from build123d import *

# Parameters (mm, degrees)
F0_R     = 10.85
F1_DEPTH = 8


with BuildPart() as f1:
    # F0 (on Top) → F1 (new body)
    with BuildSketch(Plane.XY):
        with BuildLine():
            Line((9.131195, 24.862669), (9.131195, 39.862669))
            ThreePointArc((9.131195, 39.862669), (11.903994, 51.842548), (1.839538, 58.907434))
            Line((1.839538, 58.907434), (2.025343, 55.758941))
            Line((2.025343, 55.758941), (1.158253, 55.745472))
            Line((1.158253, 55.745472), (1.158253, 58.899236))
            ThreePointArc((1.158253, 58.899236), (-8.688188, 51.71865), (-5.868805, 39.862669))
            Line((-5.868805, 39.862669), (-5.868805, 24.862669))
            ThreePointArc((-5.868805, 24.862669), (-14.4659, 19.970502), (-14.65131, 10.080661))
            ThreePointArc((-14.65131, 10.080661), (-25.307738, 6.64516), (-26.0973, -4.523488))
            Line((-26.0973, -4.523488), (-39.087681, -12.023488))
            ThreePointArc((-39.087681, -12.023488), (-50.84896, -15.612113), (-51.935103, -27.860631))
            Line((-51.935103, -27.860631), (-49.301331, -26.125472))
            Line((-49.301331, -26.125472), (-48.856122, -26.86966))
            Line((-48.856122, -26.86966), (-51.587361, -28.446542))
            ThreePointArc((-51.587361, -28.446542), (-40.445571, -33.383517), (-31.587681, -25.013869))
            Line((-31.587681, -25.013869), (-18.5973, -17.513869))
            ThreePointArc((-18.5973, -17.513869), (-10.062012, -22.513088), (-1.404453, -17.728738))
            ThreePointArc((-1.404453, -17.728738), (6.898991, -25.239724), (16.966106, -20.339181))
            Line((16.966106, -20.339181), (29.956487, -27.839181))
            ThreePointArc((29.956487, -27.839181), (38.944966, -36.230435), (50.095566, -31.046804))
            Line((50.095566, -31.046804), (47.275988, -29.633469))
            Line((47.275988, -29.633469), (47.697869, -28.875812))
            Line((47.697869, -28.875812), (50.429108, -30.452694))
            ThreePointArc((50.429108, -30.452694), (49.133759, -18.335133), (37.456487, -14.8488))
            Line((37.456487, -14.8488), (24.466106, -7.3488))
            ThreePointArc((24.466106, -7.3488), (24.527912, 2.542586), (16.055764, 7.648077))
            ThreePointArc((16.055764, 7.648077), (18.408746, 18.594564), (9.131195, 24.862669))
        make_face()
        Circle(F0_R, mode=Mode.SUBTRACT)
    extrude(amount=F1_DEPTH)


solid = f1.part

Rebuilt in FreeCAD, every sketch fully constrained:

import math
import FreeCAD as App
import Part
import Sketcher

V = App.Vector
Q = App.Units.Quantity

doc = App.newDocument("Part")
body = doc.addObject("PartDesign::Body", "Body")

sketch1 = body.newObject("Sketcher::SketchObject", "Sketch")
sketch1.AttachmentSupport = (doc.getObject("XY_Plane"), [""])
sketch1.MapMode = "FlatFace"
sketch1.addGeometry([
    Part.LineSegment(V(9.131195, 24.862669, 0), V(9.131195, 39.862669, 0)),
    Part.ArcOfCircle(Part.Circle(V(1.631195, 47.909407, 0), V(0, 0, 1), 11), math.radians(-47.014112), math.radians(88.914736)),
    Part.LineSegment(V(1.839538, 58.907434, 0), V(2.025343, 55.758941, 0)),
    Part.LineSegment(V(2.025343, 55.758941, 0), V(1.158253, 55.745472, 0)),
    Part.LineSegment(V(1.158253, 55.745472, 0), V(1.158253, 58.899236, 0)),
    Part.ArcOfCircle(Part.Circle(V(1.631196, 47.909407, 0), V(0, 0, 1), 11), math.radians(92.464179), math.radians(227.014111)),
    Part.LineSegment(V(-5.868805, 39.862669, 0), V(-5.868805, 24.862669, 0)),
    Part.ArcOfCircle(Part.Circle(V(-5.868805, 14.862669, 0), V(0, 0, 1), 10), math.radians(89.999999), math.radians(208.567962)),
    Part.ArcOfCircle(Part.Circle(V(-17.437047, 0.476513, 0), V(0, 0, 1), 10), math.radians(73.824905), math.radians(210.000004)),
    Part.LineSegment(V(-26.0973, -4.523488, 0), V(-39.087681, -12.023488, 0)),
    Part.ArcOfCircle(Part.Circle(V(-42.306361, -22.542048, 0), V(0, 0, 1), 11), math.radians(72.985888), math.radians(208.914736)),
    Part.LineSegment(V(-51.935103, -27.860631, 0), V(-49.301331, -26.125472, 0)),
    Part.LineSegment(V(-49.301331, -26.125472, 0), V(-48.856122, -26.86966, 0)),
    Part.LineSegment(V(-48.856122, -26.86966, 0), V(-51.587361, -28.446542, 0)),
    Part.ArcOfCircle(Part.Circle(V(-42.306361, -22.542047, 0), V(0, 0, 1), 11.000001), math.radians(-147.535819), math.radians(-12.98589)),
    Part.LineSegment(V(-31.587681, -25.013869, 0), V(-18.5973, -17.513869, 0)),
    Part.ArcOfCircle(Part.Circle(V(-9.937046, -12.513869, 0), V(0, 0, 1), 10), math.radians(-149.999998), math.radians(-31.432044)),
    Part.ArcOfCircle(Part.Circle(V(8.305852, -15.339182, 0), V(0, 0, 1), 10), math.radians(-166.17509), math.radians(-29.999997)),
    Part.LineSegment(V(16.966106, -20.339181, 0), V(29.956487, -27.839181, 0)),
    Part.ArcOfCircle(Part.Circle(V(40.675167, -25.36736, 0), V(0, 0, 1), 11), math.radians(-167.014113), math.radians(-31.085267)),
    Part.LineSegment(V(50.095566, -31.046804, 0), V(47.275988, -29.633469, 0)),
    Part.LineSegment(V(47.275988, -29.633469, 0), V(47.697869, -28.875812, 0)),
    Part.LineSegment(V(47.697869, -28.875812, 0), V(50.429108, -30.452694, 0)),
    Part.ArcOfCircle(Part.Circle(V(40.675167, -25.36736, 0), V(0, 0, 1), 11), math.radians(-27.535824), math.radians(107.014113)),
    Part.LineSegment(V(37.456487, -14.8488, 0), V(24.466106, -7.3488, 0)),
    Part.ArcOfCircle(Part.Circle(V(15.805851, -2.348801, 0), V(0, 0, 1), 10.000001), math.radians(-29.999993), math.radians(88.567953)),
    Part.ArcOfCircle(Part.Circle(V(9.131195, 14.862669, 0), V(0, 0, 1), 10), math.radians(-46.175087), math.radians(89.999998)),
    Part.Circle(V(0, 0, 0), V(0, 0, 1), 10.85),
], False)
sketch1.addConstraint([
    Sketcher.Constraint("Coincident", 0, 2, 1, 1),
    Sketcher.Constraint("Coincident", 1, 2, 2, 1),
    Sketcher.Constraint("Coincident", 2, 2, 3, 1),
    Sketcher.Constraint("Coincident", 3, 2, 4, 1),
    Sketcher.Constraint("Coincident", 4, 2, 5, 1),
    Sketcher.Constraint("Coincident", 5, 2, 6, 1),
    Sketcher.Constraint("Coincident", 6, 2, 7, 1),
    Sketcher.Constraint("Coincident", 7, 2, 8, 1),
    Sketcher.Constraint("Coincident", 8, 2, 9, 1),
    Sketcher.Constraint("Coincident", 9, 2, 10, 1),
    Sketcher.Constraint("Coincident", 10, 2, 11, 1),
    Sketcher.Constraint("Coincident", 11, 2, 12, 1),
    Sketcher.Constraint("Coincident", 12, 2, 13, 1),
    Sketcher.Constraint("Coincident", 13, 2, 14, 1),
    Sketcher.Constraint("Coincident", 14, 2, 15, 1),
    Sketcher.Constraint("Coincident", 15, 2, 16, 1),
    Sketcher.Constraint("Coincident", 16, 2, 17, 1),
    Sketcher.Constraint("Coincident", 17, 2, 18, 1),
    Sketcher.Constraint("Coincident", 18, 2, 19, 1),
    Sketcher.Constraint("Coincident", 19, 2, 20, 1),
    Sketcher.Constraint("Coincident", 20, 2, 21, 1),
    Sketcher.Constraint("Coincident", 21, 2, 22, 1),
    Sketcher.Constraint("Coincident", 22, 2, 23, 1),
    Sketcher.Constraint("Coincident", 23, 2, 24, 1),
    Sketcher.Constraint("Coincident", 24, 2, 25, 1),
    Sketcher.Constraint("Coincident", 25, 2, 26, 1),
    Sketcher.Constraint("Coincident", 26, 2, 0, 1),
    Sketcher.Constraint("Vertical", 0),
    Sketcher.Constraint("Vertical", 4),
    Sketcher.Constraint("Vertical", 6),
    Sketcher.Constraint("Coincident", 27, 3, -1, 1),
    Sketcher.Constraint("Coincident", 5, 3, 1, 3),
    Sketcher.Constraint("Coincident", 14, 3, 10, 3),
    Sketcher.Constraint("Coincident", 23, 3, 19, 3),
    Sketcher.Constraint("Equal", 1, 5),
    Sketcher.Constraint("Equal", 7, 8),
    Sketcher.Constraint("Equal", 5, 10),
    Sketcher.Constraint("Equal", 10, 14),
    Sketcher.Constraint("Equal", 8, 16),
    Sketcher.Constraint("Equal", 16, 17),
    Sketcher.Constraint("Equal", 14, 19),
    Sketcher.Constraint("Equal", 19, 23),
    Sketcher.Constraint("Equal", 17, 25),
    Sketcher.Constraint("Equal", 25, 26),
    Sketcher.Constraint("Parallel", 9, 13),
    Sketcher.Constraint("Parallel", 13, 15),
    Sketcher.Constraint("Parallel", 18, 22),
    Sketcher.Constraint("Parallel", 22, 24),
    Sketcher.Constraint("Horizontal", 7, 3, 26, 3),
    Sketcher.Constraint("Horizontal", 0, 2, 5, 2),
    Sketcher.Constraint("Vertical", 26, 3, 0, 2),
    Sketcher.Constraint("Vertical", 7, 3, 5, 2),
    Sketcher.Constraint("Equal", 2, 11),
    Sketcher.Constraint("Equal", 3, 12),
    Sketcher.Constraint("Equal", 9, 15),
    Sketcher.Constraint("Equal", 15, 18),
    Sketcher.Constraint("Equal", 11, 20),
    Sketcher.Constraint("Equal", 12, 21),
    Sketcher.Constraint("Equal", 13, 22),
    Sketcher.Constraint("Equal", 18, 24),
    Sketcher.Constraint("Radius", 1, 11.0),
    Sketcher.Constraint("Radius", 7, 10.0),
    Sketcher.Constraint("Diameter", 27, 21.7),
    Sketcher.Constraint("DistanceY", 0, 1, 0, 2, 15.0),
    Sketcher.Constraint("Angle", 9, Q("-150 deg")),
    Sketcher.Constraint("Angle", 18, Q("-30 deg")),
    Sketcher.Constraint("Distance", 9, 15.0),
    Sketcher.Constraint("DistanceX", 7, 3, 26, 3, 15.0),
    Sketcher.Constraint("DistanceY", 8, 2, 8, 3, 5.000001),
    Sketcher.Constraint("DistanceY", 15, 2, 16, 3, 5.0),
    Sketcher.Constraint("DistanceY", 17, 2, 17, 3, 4.999999),
    Sketcher.Constraint("DistanceY", 24, 2, 25, 3, 4.999999),
    Sketcher.Constraint("DistanceX", 8, 3, 16, 3, 7.500001),
    Sketcher.Constraint("DistanceX", 17, 3, 25, 3, 7.499999),
    Sketcher.Constraint("DistanceX", 13, 2, 14, 3, 9.281),
    Sketcher.Constraint("DistanceY", 25, 3, -1, 1, 2.348801),
    Sketcher.Constraint("DistanceX", 8, 2, -1, 1, 26.0973),
    Sketcher.Constraint("DistanceX", 8, 3, 17, 3, 25.742898),
    Sketcher.Constraint("DistanceX", 19, 3, 19, 2, 9.420399),
    Sketcher.Constraint("DistanceX", 18, 2, 20, 2, 17.319501),
    Sketcher.Constraint("DistanceX", 19, 3, 21, 2, 7.022702),
    Sketcher.Constraint("Distance", 2, 3.153971),
    Sketcher.Constraint("DistanceY", 4, 1, 4, 2, 3.153764),
    Sketcher.Constraint("DistanceY", -1, 1, 7, 3, 14.862669),
    Sketcher.Constraint("DistanceX", 10, 3, -1, 1, 42.306361),
    Sketcher.Constraint("DistanceY", 10, 3, -1, 1, 22.542048),
    Sketcher.Constraint("DistanceY", 17, 3, -1, 1, 15.339182),
    Sketcher.Constraint("DistanceY", -1, 1, 2, 2, 55.758941),
    Sketcher.Constraint("DistanceX", 7, 2, -1, 1, 14.65131),
    Sketcher.Constraint("DistanceY", 10, 2, -1, 1, 27.860631),
    Sketcher.Constraint("DistanceX", 11, 2, -1, 1, 49.301331),
    Sketcher.Constraint("DistanceX", 1, 3, 2, 2, 0.394148),
])
pad1 = body.newObject("PartDesign::Pad", "Pad")
pad1.Profile = sketch1
pad1.Length = 8

doc.recompute()
